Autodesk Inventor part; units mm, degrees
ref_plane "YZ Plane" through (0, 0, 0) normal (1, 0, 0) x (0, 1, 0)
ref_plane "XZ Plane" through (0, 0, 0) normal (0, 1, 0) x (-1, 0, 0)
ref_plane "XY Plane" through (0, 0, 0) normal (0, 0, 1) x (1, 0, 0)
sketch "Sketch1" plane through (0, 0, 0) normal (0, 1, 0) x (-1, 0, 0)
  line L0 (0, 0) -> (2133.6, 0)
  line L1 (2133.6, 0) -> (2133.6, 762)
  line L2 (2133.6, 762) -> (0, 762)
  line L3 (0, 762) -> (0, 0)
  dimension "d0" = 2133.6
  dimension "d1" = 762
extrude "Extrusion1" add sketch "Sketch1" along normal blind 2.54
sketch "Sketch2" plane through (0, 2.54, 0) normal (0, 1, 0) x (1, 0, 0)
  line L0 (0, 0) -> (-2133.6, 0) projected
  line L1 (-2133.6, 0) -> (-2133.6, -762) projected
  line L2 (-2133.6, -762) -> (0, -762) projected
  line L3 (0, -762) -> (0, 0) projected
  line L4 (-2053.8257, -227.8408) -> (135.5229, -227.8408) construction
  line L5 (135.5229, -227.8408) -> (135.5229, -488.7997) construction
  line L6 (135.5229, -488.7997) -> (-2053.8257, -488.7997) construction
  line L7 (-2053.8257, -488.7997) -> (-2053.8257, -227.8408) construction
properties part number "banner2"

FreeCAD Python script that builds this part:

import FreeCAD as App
import Part
import Sketcher

V = App.Vector
Q = App.Units.Quantity

doc = App.newDocument("Part")
body = doc.addObject("PartDesign::Body", "Body")

# Sketch on XZ plane
sketch1 = doc.addObject("Sketcher::SketchObject", "Sketch")
body.addObject(sketch1)
sketch1.AttachmentSupport = (doc.XZ_Plane, [""])
sketch1.MapMode = "FlatFace"
sketch1.addGeometry(Part.LineSegment(V(0, 762, 0), V(0, 0, 0)), False)
sketch1.addGeometry(Part.LineSegment(V(0, 0, 0), V(-2133.6, 0, 0)), False)
sketch1.addGeometry(Part.LineSegment(V(-2133.6, 0, 0), V(-2133.6, 762, 0)), False)
sketch1.addGeometry(Part.LineSegment(V(-2133.6, 762, 0), V(0, 762, 0)), False)
sketch1.addConstraint(Sketcher.Constraint("Coincident", 0, 2, 1, 1))
sketch1.addConstraint(Sketcher.Constraint("Coincident", 1, 2, 2, 1))
sketch1.addConstraint(Sketcher.Constraint("Coincident", 2, 2, 3, 1))
sketch1.addConstraint(Sketcher.Constraint("Coincident", 3, 2, 0, 1))
sketch1.addConstraint(Sketcher.Constraint("Vertical", 0))
sketch1.addConstraint(Sketcher.Constraint("Horizontal", 1))
sketch1.addConstraint(Sketcher.Constraint("Vertical", 2))
sketch1.addConstraint(Sketcher.Constraint("Horizontal", 3))
sketch1.addConstraint(Sketcher.Constraint("Coincident", 0, 2, -1, 1))
sketch1.addConstraint(Sketcher.Constraint("DistanceX", 1, 2, 1, 1, Q("84 in")))
sketch1.addConstraint(Sketcher.Constraint("DistanceY", 0, 2, 0, 1, Q("30 in")))
pad1 = doc.addObject("PartDesign::Pad", "Pad")
body.addObject(pad1)
pad1.Profile = sketch1
pad1.Length = Q("0.1 in")
pad1.Reversed = True

doc.recompute()
